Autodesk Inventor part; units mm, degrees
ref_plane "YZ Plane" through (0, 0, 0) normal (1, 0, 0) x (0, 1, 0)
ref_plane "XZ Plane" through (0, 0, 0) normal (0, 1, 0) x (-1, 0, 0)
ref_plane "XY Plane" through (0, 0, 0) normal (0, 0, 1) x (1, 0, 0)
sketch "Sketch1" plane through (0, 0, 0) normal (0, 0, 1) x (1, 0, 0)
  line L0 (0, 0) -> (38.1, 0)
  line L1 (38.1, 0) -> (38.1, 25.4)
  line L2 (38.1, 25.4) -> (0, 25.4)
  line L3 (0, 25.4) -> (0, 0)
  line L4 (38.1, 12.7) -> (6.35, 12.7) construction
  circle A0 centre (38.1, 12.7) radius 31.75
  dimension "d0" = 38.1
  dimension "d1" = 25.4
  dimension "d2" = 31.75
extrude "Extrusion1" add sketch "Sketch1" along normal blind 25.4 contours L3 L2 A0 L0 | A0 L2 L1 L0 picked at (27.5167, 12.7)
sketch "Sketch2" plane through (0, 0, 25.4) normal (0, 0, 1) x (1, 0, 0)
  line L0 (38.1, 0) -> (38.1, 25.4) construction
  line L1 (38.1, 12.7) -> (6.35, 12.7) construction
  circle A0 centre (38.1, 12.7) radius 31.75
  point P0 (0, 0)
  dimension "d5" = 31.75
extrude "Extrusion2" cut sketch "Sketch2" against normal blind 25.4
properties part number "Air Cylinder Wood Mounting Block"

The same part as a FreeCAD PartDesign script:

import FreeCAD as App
import Part
import Sketcher
Q = App.Units.Quantity


def add_polygon(sketch, points):
    """Adds a closed chain of lines whose ends are joined by coincident constraints."""
    first, n = sketch.GeometryCount, len(points)
    for a, b in zip(points, points[1:] + points[:1]):
        sketch.addGeometry(Part.LineSegment(App.Vector(*a, 0), App.Vector(*b, 0)), False)
    for i in range(n):
        sketch.addConstraint(Sketcher.Constraint("Coincident", first + i, 2, first + (i + 1) % n, 1))

doc = App.newDocument("Part")
params = doc.addObject("Spreadsheet::Sheet", "Params")
for row, (alias, value) in enumerate([
    ("sketch1_height", "1 in"),
    ("sketch1_width", "1.5 in"),
    ("pad1_length", "1 in"),
    ("sketch2_diameter", "2.5 in"),
    ("pocket1_length", "1 in"),
], start=1):
    params.set(f"A{row}", alias)
    params.set(f"B{row}", "=" + value)
    params.setAlias(f"B{row}", alias)

body = doc.addObject("PartDesign::Body", "Body")

# Sketch on XY plane
sketch1 = body.newObject("Sketcher::SketchObject", "Sketch")
sketch1.AttachmentSupport = (doc.getObject("XY_Plane"), [""])
sketch1.MapMode = "FlatFace"
add_polygon(sketch1, [(0, 25), (0, 0), (38, 0), (38, 25)])  # lines 0-3
sketch1.addConstraint(Sketcher.Constraint("Vertical", 0))
sketch1.addConstraint(Sketcher.Constraint("Horizontal", 1))
sketch1.addConstraint(Sketcher.Constraint("Vertical", 2))
sketch1.addConstraint(Sketcher.Constraint("Horizontal", 3))
sketch1.addConstraint(Sketcher.Constraint("Coincident", 0, 2, -1, 1))
sketch1.addConstraint(Sketcher.Constraint("DistanceY", 0, 2, 0, 1, Q("1 in")))
sketch1.addConstraint(Sketcher.Constraint("DistanceX", 1, 1, 1, 2, Q("1.5 in")))
sketch1.setExpression("Constraints[9]", "Params.sketch1_height")
sketch1.setExpression("Constraints[10]", "Params.sketch1_width")
pad1 = body.newObject("PartDesign::Pad", "Pad")
pad1.Profile = sketch1
pad1.setExpression("Length", "Params.pad1_length")

# Sketch on XY plane
sketch2 = body.newObject("Sketcher::SketchObject", "Sketch001")
sketch2.AttachmentSupport = (doc.getObject("XY_Plane"), [""])
sketch2.MapMode = "FlatFace"
sketch2.AttachmentOffset = App.Placement(App.Vector(0, 0, 1 * 25.4), App.Rotation())
sketch2.addGeometry(Part.Circle(App.Vector(38, 13, 0), App.Vector(0, 0, 1), 32), False)
sketch2.addConstraint(Sketcher.Constraint("Diameter", 0, Q("2.5 in")))
sketch2.addConstraint(Sketcher.Constraint("DistanceX", -1, 1, 0, 3, Q("1.5 in")))
sketch2.addConstraint(Sketcher.Constraint("DistanceY", -1, 1, 0, 3, Q("0.5 in")))
sketch2.setExpression("Constraints[0]", "Params.sketch2_diameter")
pocket1 = body.newObject("PartDesign::Pocket", "Pocket")
pocket1.Profile = sketch2
pocket1.setExpression("Length", "Params.pocket1_length")

doc.recompute()
